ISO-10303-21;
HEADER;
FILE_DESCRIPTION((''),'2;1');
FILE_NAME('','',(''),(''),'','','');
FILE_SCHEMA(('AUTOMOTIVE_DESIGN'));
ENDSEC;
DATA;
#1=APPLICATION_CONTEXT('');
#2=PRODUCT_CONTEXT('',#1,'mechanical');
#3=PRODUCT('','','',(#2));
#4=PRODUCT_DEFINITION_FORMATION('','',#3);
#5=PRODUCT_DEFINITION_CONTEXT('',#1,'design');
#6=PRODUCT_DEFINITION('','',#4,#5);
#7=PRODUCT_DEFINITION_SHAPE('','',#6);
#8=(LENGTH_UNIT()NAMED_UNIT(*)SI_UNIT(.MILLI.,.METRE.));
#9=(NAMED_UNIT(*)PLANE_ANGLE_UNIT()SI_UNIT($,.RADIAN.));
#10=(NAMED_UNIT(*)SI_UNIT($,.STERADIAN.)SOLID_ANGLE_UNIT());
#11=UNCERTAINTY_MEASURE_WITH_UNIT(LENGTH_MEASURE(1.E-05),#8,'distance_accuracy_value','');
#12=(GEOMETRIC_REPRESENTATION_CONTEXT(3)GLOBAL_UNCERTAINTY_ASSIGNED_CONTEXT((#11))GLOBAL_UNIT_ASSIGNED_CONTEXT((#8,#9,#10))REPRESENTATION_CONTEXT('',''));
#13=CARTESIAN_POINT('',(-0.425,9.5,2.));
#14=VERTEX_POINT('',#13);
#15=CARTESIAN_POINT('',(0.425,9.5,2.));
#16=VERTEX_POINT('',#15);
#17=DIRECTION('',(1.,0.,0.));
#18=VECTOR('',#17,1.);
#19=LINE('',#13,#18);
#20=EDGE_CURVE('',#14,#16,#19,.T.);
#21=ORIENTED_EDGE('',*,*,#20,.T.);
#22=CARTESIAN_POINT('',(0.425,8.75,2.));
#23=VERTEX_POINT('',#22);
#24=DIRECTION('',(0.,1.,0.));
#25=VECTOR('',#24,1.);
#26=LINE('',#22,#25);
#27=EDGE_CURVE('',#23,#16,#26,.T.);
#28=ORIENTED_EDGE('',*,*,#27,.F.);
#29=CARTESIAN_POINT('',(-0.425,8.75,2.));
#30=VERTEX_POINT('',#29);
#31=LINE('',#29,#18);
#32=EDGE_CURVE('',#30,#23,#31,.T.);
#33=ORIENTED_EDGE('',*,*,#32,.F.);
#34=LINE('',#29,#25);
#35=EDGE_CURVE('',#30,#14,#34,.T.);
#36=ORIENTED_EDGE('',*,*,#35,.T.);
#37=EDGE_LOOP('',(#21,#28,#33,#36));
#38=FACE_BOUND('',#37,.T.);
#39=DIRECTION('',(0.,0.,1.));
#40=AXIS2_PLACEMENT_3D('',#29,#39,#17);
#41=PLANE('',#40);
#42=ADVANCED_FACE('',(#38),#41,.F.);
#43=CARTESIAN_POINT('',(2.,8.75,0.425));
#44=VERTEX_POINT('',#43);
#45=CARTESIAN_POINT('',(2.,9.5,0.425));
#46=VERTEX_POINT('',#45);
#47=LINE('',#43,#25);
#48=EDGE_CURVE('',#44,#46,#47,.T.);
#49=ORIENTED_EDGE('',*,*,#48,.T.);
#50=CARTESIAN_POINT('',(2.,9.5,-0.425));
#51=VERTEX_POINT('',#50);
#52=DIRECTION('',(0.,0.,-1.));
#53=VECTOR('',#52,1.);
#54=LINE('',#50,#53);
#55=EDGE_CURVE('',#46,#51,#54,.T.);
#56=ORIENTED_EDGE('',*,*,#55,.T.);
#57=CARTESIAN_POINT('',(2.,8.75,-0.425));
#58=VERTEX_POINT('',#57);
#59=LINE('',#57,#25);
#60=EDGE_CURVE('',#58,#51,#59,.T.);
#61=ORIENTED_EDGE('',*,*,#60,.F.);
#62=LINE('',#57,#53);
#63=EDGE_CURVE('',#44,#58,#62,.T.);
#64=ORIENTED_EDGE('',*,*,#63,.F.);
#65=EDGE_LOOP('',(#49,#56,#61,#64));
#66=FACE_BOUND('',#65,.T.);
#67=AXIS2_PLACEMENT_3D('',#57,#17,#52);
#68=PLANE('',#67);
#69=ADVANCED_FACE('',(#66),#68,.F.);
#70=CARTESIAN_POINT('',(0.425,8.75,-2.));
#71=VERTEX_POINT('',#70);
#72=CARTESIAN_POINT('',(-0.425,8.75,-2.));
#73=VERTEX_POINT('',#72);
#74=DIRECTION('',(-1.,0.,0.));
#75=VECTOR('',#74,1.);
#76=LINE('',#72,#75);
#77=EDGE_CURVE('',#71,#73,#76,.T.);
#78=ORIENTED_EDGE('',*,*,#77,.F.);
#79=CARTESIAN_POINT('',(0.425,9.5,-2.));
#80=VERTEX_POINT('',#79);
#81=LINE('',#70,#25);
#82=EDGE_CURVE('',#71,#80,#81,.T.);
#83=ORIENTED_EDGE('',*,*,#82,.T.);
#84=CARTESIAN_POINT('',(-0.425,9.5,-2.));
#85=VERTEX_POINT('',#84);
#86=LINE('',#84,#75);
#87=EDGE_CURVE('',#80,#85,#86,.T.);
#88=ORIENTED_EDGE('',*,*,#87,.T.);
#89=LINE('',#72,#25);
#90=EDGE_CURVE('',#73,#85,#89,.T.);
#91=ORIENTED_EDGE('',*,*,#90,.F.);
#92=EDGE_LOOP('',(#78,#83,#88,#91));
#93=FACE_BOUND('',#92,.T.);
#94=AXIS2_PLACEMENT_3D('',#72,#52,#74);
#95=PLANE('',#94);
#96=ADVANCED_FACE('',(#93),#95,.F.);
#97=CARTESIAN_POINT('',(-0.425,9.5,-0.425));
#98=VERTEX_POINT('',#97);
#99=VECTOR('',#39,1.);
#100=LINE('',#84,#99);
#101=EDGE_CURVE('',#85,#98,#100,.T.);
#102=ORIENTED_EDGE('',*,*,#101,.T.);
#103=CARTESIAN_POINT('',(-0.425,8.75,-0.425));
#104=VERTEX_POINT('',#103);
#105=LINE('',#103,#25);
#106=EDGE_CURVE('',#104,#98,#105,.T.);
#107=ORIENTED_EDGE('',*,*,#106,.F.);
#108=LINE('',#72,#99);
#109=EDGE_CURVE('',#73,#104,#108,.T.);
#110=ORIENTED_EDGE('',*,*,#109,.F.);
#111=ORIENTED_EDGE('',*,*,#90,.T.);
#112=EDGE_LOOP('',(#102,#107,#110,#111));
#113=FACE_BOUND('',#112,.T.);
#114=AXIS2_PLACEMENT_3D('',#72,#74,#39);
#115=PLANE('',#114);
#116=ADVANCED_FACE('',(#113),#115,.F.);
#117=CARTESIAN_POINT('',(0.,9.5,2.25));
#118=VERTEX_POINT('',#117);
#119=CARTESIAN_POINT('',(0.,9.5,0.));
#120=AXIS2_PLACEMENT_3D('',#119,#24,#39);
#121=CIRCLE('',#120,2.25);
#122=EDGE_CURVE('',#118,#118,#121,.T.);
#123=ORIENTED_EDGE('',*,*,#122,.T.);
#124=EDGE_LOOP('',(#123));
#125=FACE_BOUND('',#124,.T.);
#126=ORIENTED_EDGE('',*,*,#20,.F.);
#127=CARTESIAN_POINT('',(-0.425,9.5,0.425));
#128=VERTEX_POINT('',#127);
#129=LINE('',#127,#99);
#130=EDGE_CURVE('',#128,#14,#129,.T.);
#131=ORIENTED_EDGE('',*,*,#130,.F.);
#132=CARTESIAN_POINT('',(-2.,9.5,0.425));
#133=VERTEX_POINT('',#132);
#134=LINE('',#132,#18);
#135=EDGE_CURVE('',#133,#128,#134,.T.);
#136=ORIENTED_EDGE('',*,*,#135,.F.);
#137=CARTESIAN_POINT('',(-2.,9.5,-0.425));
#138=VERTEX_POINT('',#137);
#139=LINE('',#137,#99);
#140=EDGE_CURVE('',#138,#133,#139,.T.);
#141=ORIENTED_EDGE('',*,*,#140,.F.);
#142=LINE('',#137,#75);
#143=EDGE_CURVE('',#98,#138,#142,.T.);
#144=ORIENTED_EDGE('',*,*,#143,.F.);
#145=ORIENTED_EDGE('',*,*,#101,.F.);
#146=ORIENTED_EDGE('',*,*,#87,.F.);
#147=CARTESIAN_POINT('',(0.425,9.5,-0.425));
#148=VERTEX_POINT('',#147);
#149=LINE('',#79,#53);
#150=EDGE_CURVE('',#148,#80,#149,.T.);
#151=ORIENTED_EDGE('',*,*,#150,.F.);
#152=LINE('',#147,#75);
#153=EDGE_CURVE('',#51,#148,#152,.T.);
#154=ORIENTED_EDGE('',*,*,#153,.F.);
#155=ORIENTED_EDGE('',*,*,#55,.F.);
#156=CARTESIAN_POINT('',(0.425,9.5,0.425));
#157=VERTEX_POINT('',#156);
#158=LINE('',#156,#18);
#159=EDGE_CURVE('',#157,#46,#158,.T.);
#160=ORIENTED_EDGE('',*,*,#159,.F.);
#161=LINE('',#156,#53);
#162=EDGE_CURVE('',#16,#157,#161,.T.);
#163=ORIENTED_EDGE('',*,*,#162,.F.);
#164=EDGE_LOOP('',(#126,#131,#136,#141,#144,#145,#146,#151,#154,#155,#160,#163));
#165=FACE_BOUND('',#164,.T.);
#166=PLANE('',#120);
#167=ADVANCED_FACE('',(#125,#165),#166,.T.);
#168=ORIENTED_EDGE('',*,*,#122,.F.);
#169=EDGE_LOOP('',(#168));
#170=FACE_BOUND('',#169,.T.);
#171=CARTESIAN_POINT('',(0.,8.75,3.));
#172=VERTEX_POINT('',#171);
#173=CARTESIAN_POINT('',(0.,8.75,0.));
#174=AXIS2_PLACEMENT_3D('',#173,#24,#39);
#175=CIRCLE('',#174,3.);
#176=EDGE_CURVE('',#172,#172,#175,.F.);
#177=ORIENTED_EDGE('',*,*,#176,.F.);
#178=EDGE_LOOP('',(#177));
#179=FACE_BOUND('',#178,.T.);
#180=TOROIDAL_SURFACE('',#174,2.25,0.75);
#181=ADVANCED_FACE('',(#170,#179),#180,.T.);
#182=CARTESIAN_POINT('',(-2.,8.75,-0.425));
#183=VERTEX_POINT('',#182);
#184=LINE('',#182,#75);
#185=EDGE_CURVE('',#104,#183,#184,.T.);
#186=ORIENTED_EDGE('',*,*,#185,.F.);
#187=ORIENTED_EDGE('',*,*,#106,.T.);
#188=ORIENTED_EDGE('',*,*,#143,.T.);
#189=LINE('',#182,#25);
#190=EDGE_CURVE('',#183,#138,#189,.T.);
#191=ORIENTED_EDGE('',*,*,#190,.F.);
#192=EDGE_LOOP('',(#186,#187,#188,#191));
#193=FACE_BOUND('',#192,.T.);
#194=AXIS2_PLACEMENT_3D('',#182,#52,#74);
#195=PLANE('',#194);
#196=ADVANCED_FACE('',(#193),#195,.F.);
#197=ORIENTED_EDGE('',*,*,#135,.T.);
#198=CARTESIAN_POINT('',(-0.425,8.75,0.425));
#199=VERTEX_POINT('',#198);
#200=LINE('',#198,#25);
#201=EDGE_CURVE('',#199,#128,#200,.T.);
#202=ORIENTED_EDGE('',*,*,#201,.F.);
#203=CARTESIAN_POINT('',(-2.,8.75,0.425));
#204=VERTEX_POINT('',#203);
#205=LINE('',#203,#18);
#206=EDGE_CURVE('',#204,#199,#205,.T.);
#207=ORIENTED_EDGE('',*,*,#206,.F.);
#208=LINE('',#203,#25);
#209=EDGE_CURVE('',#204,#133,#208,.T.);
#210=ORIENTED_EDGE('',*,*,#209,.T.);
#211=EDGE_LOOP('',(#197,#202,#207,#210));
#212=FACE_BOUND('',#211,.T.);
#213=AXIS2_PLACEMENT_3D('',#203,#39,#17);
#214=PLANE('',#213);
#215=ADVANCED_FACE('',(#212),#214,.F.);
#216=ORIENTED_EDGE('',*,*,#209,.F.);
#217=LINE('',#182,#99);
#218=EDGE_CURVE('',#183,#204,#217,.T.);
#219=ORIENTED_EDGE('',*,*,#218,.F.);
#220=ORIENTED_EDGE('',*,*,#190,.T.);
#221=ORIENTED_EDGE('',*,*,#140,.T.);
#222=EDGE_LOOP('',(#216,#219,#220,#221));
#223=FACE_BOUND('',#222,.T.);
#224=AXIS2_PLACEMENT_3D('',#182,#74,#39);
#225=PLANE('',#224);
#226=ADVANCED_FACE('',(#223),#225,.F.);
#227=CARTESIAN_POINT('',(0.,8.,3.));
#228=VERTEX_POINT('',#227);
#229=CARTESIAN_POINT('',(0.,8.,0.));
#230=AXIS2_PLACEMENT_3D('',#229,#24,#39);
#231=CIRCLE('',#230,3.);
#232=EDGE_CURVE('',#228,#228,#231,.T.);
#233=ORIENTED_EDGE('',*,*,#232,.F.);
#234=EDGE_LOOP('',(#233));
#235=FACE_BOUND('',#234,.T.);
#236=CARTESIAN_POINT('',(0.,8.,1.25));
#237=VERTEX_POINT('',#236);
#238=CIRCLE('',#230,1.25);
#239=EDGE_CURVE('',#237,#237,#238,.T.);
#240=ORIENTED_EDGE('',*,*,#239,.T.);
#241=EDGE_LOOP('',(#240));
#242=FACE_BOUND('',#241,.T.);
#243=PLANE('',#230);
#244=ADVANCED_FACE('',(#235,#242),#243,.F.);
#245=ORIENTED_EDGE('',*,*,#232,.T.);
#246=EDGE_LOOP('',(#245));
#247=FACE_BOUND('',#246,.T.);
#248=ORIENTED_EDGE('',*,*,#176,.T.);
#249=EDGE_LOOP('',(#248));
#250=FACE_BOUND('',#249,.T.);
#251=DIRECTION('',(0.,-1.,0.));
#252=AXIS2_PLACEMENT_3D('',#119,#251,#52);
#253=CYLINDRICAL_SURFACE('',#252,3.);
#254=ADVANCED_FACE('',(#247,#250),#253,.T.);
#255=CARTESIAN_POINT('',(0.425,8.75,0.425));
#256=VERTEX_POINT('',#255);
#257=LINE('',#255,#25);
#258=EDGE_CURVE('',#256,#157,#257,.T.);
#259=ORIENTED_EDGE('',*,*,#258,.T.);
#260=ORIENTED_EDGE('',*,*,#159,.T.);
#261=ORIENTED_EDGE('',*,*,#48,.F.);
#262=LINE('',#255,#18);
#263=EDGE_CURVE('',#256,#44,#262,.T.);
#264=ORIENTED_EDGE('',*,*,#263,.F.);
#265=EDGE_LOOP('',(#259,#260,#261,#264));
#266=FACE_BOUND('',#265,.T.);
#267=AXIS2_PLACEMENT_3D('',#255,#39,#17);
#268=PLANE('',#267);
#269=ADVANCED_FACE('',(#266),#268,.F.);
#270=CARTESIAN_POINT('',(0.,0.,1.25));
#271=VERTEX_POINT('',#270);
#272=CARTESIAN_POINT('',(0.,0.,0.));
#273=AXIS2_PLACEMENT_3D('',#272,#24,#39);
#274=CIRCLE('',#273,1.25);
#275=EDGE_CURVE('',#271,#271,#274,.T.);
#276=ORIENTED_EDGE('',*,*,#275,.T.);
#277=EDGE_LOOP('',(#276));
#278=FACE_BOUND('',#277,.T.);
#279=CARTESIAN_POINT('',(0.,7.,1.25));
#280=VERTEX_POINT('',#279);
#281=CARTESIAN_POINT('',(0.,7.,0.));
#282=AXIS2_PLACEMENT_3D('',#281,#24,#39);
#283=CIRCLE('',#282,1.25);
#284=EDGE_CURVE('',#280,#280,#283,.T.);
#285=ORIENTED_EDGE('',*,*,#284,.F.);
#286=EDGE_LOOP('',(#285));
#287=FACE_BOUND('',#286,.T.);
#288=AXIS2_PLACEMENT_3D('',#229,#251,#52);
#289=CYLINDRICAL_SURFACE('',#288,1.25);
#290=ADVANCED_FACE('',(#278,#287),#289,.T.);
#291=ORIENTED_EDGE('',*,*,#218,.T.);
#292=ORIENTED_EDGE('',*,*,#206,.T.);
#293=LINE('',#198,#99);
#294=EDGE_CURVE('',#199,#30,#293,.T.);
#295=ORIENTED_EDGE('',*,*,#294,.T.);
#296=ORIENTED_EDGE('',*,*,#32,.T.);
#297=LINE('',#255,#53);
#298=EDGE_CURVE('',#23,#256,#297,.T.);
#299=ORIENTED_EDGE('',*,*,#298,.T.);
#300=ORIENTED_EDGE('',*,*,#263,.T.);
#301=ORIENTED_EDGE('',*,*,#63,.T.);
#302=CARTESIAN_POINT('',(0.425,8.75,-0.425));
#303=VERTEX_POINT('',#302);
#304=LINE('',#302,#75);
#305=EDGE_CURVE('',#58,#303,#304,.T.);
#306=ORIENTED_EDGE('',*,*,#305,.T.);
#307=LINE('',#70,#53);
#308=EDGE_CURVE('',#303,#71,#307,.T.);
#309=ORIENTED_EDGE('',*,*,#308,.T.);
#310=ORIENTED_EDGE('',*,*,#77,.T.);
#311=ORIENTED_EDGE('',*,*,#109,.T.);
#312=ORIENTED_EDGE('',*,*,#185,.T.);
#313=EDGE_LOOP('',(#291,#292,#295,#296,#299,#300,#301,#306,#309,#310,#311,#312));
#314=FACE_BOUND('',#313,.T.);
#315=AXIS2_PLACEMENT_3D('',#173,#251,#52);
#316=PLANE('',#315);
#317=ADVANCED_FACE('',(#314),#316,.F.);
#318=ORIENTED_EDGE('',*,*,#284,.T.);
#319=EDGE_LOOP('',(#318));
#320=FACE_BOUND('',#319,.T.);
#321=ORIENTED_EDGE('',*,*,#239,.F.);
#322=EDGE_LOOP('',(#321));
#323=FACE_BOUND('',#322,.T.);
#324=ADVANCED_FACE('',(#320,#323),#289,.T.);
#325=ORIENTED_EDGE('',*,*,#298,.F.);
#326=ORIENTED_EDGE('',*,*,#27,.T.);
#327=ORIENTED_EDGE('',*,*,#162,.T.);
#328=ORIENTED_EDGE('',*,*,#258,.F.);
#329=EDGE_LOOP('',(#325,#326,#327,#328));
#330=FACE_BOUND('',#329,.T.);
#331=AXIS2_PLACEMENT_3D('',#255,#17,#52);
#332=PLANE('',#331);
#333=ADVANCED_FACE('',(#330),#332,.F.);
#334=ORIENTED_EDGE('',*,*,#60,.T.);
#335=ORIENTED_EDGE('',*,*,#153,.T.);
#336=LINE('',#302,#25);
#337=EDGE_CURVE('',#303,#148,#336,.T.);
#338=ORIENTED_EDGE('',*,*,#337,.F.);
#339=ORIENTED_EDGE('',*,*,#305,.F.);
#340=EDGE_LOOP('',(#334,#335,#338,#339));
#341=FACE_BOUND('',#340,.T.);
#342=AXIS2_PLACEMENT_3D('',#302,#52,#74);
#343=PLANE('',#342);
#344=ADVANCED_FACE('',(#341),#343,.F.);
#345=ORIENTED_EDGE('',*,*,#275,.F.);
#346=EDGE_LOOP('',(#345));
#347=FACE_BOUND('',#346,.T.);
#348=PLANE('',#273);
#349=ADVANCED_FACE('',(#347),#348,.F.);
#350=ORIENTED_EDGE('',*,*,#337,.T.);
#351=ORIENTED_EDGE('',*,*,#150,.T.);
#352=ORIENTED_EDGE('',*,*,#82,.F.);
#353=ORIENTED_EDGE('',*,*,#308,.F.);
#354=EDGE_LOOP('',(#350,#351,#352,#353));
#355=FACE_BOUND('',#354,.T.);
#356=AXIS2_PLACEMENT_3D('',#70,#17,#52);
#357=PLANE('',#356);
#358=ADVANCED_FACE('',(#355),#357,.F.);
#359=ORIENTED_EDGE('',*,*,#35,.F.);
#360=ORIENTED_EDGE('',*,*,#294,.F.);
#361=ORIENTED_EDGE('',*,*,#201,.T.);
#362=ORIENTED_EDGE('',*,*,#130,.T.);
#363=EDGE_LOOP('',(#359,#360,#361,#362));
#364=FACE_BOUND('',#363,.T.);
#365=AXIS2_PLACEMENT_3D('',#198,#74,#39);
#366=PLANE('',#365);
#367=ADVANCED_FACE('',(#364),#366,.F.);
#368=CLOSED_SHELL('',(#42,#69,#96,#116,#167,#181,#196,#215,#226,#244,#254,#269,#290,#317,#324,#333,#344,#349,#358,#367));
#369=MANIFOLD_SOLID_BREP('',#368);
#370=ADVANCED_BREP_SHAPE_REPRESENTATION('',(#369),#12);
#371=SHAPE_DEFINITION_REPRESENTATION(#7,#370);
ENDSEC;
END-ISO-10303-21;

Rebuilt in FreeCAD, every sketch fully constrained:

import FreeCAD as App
import Part
import Sketcher

V = App.Vector
Q = App.Units.Quantity


def edges_at(feature, points):
    """Names of the edges that pass closest to the given points."""
    edges = feature.Shape.Edges
    near = lambda p: min(range(len(edges)), key=lambda i: edges[i].distToShape(Part.Vertex(*p))[0])
    return sorted({f"Edge{near(p) + 1}" for p in points})

doc = App.newDocument("Part")
body = doc.addObject("PartDesign::Body", "Body")

sketch1 = body.newObject("Sketcher::SketchObject", "Sketch")
sketch1.AttachmentSupport = (doc.getObject("XZ_Plane"), [""])
sketch1.MapMode = "FlatFace"
sketch1.addGeometry(Part.Circle(V(0, 0, 0), V(0, 0, 1), 1.25), False)
sketch1.addConstraint([
    Sketcher.Constraint("Coincident", 0, 3, -1, 1),
    Sketcher.Constraint("Diameter", 0, Q("2.5 mm")),
])
pad1 = body.newObject("PartDesign::Pad", "Pad")
pad1.Profile = sketch1
pad1.Length = 8
pad1.Reversed = True

sketch2 = body.newObject("Sketcher::SketchObject", "Sketch001")
sketch2.AttachmentSupport = (doc.getObject("XZ_Plane"), [""])
sketch2.MapMode = "FlatFace"
sketch2.AttachmentOffset = App.Placement(V(0, 0, -8), App.Rotation())
sketch2.addGeometry(Part.Circle(V(0, 0, 0), V(0, 0, 1), 3), False)
sketch2.addConstraint([
    Sketcher.Constraint("Coincident", 0, 3, -1, 1),
    Sketcher.Constraint("Diameter", 0, Q("6 mm")),
])
pad2 = body.newObject("PartDesign::Pad", "Pad001")
pad2.Profile = sketch2
pad2.Length = 1.5
pad2.Reversed = True
doc.recompute()

fillet = body.newObject("PartDesign::Fillet", "Fillet")
fillet.Base = (pad2, edges_at(pad2, [(0, 9.5, -3)]))
fillet.Radius = 0.75

sketch3 = body.newObject("Sketcher::SketchObject", "Sketch002")
sketch3.AttachmentSupport = (doc.getObject("XZ_Plane"), [""])
sketch3.MapMode = "FlatFace"
sketch3.AttachmentOffset = App.Placement(V(0, 0, -9.5), App.Rotation())
sketch3.addGeometry([
    Part.LineSegment(V(2, -0.425, 0), V(0.425, -0.425, 0)),
    Part.LineSegment(V(0.425, -0.425, 0), V(0.425, -2, 0)),
    Part.LineSegment(V(0.425, -2, 0), V(-0.425, -2, 0)),
    Part.LineSegment(V(-0.425, -2, 0), V(-0.425, -0.425, 0)),
    Part.LineSegment(V(-0.425, -0.425, 0), V(-2, -0.425, 0)),
    Part.LineSegment(V(-2, -0.425, 0), V(-2, 0.425, 0)),
    Part.LineSegment(V(-2, 0.425, 0), V(-0.425, 0.425, 0)),
    Part.LineSegment(V(-0.425, 0.425, 0), V(-0.425, 2, 0)),
    Part.LineSegment(V(-0.425, 2, 0), V(0.425, 2, 0)),
    Part.LineSegment(V(0.425, 2, 0), V(0.425, 0.425, 0)),
    Part.LineSegment(V(0.425, 0.425, 0), V(2, 0.425, 0)),
    Part.LineSegment(V(2, 0.425, 0), V(2, -0.425, 0)),
], False)
sketch3.addConstraint([
    Sketcher.Constraint("Coincident", 0, 2, 1, 1),
    Sketcher.Constraint("Coincident", 1, 2, 2, 1),
    Sketcher.Constraint("Coincident", 2, 2, 3, 1),
    Sketcher.Constraint("Coincident", 3, 2, 4, 1),
    Sketcher.Constraint("Coincident", 4, 2, 5, 1),
    Sketcher.Constraint("Coincident", 5, 2, 6, 1),
    Sketcher.Constraint("Coincident", 6, 2, 7, 1),
    Sketcher.Constraint("Coincident", 7, 2, 8, 1),
    Sketcher.Constraint("Coincident", 8, 2, 9, 1),
    Sketcher.Constraint("Coincident", 9, 2, 10, 1),
    Sketcher.Constraint("Coincident", 10, 2, 11, 1),
    Sketcher.Constraint("Coincident", 11, 2, 0, 1),
    Sketcher.Constraint("Horizontal", 0),
    Sketcher.Constraint("Vertical", 1),
    Sketcher.Constraint("Horizontal", 2),
    Sketcher.Constraint("Vertical", 3),
    Sketcher.Constraint("Horizontal", 4),
    Sketcher.Constraint("Vertical", 5),
    Sketcher.Constraint("Horizontal", 6),
    Sketcher.Constraint("Vertical", 7),
    Sketcher.Constraint("Horizontal", 8),
    Sketcher.Constraint("Vertical", 9),
    Sketcher.Constraint("Horizontal", 10),
    Sketcher.Constraint("Vertical", 11),
    Sketcher.Constraint("Symmetric", 0, 2, 6, 2, -1, 1),
    Sketcher.Constraint("Symmetric", 2, 2, 8, 2, -1, 1),
    Sketcher.Constraint("Symmetric", 4, 2, 10, 2, -1, 1),
    Sketcher.Constraint("Symmetric", 0, 2, 3, 2, -2),
    Sketcher.Constraint("Equal", 10, 1),
    Sketcher.Constraint("Equal", 8, 5),
    Sketcher.Constraint("DistanceY", 1, 2, -1, 1, Q("2 mm")),
    Sketcher.Constraint("DistanceX", 2, 2, 2, 1, Q("0.85 mm")),
])
pocket1 = body.newObject("PartDesign::Pocket", "Pocket")
pocket1.Profile = sketch3
pocket1.Length = 0.75
pocket1.Reversed = True

doc.recompute()
